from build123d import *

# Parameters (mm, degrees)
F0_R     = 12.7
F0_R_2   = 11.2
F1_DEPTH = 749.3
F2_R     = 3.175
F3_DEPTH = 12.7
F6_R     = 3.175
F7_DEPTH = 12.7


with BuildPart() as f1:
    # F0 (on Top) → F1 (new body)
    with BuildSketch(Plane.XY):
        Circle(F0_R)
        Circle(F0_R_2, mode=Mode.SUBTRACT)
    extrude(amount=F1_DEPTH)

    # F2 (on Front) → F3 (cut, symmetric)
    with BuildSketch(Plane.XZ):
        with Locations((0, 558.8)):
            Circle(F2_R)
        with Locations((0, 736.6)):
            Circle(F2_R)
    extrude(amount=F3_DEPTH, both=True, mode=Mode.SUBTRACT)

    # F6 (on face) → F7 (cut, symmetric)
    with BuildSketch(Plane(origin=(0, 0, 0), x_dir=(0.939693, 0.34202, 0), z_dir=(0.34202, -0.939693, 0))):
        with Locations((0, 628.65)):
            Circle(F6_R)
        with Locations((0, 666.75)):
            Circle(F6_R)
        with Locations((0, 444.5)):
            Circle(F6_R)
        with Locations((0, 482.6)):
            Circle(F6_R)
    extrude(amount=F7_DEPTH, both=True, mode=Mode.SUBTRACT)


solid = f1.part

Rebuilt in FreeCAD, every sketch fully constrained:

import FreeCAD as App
import Part
import Sketcher
Q = App.Units.Quantity

doc = App.newDocument("Part")
params = doc.addObject("Spreadsheet::Sheet", "Params")
for row, (alias, value) in enumerate([
    ("sketch1_diameter", "1 in"),
    ("pad1_length", "29.5 in"),
    ("sketch2_diameter", "0.25 in"),
    ("pocket1_length", "1 in"),
    ("sketch3_diameter", "0.25 in"),
    ("pocket2_length", "1 in"),
], start=1):
    params.set(f"A{row}", alias)
    params.set(f"B{row}", "=" + value)
    params.setAlias(f"B{row}", alias)

body = doc.addObject("PartDesign::Body", "Body")

# Sketch on XY plane
sketch1 = body.newObject("Sketcher::SketchObject", "Sketch")
sketch1.AttachmentSupport = (doc.getObject("XY_Plane"), [""])
sketch1.MapMode = "FlatFace"
sketch1.addGeometry([
    Part.Circle(App.Vector(0, 0, 0), App.Vector(0, 0, 1), 12.7),
    Part.Circle(App.Vector(0, 0, 0), App.Vector(0, 0, 1), 11.2),
], False)
sketch1.addConstraint([
    Sketcher.Constraint("Coincident", 0, 3, -1, 1),
    Sketcher.Constraint("Coincident", 1, 3, -1, 1),
    Sketcher.Constraint("Diameter", 0, Q("1 in")),
    Sketcher.Constraint("Diameter", 1, Q("22.4 mm")),
])
sketch1.setExpression("Constraints[2]", "Params.sketch1_diameter")
pad1 = body.newObject("PartDesign::Pad", "Pad")
pad1.Profile = sketch1
pad1.setExpression("Length", "Params.pad1_length")

# Sketch on XZ plane
sketch2 = body.newObject("Sketcher::SketchObject", "Sketch001")
sketch2.AttachmentSupport = (doc.getObject("XZ_Plane"), [""])
sketch2.MapMode = "FlatFace"
sketch2.addGeometry([
    Part.Circle(App.Vector(0, 558.8, 0), App.Vector(0, 0, 1), 3.175),
    Part.Circle(App.Vector(0, 736.6, 0), App.Vector(0, 0, 1), 3.175),
], False)
sketch2.addConstraint([
    Sketcher.Constraint("Equal", 0, 1),
    Sketcher.Constraint("PointOnObject", 0, 3, -2),
    Sketcher.Constraint("PointOnObject", 1, 3, -2),
    Sketcher.Constraint("Diameter", 0, Q("0.25 in")),
    Sketcher.Constraint("DistanceY", -1, 1, 0, 3, Q("22 in")),
    Sketcher.Constraint("DistanceY", -1, 1, 1, 3, Q("29 in")),
])
sketch2.setExpression("Constraints[3]", "Params.sketch2_diameter")
pocket1 = body.newObject("PartDesign::Pocket", "Pocket")
pocket1.Profile = sketch2
pocket1.setExpression("Length", "Params.pocket1_length")
pocket1.Midplane = True

# Sketch on an angled plane
sketch3 = body.newObject("Sketcher::SketchObject", "Sketch002")
sketch3.Placement = App.Placement(App.Vector(0, 0, 0), App.Rotation(App.Vector(0.939692711, 0.342019895, 0), App.Vector(0, 0, 1), App.Vector(0.342019895, -0.939692711, 0), "ZXY"))
sketch3.addGeometry([
    Part.Circle(App.Vector(0, 628.65, 0), App.Vector(0, 0, 1), 3.175),
    Part.Circle(App.Vector(0, 666.75, 0), App.Vector(0, 0, 1), 3.175),
    Part.Circle(App.Vector(0, 444.5, 0), App.Vector(0, 0, 1), 3.175),
    Part.Circle(App.Vector(0, 482.6, 0), App.Vector(0, 0, 1), 3.175),
], False)
sketch3.addConstraint([
    Sketcher.Constraint("Equal", 0, 1),
    Sketcher.Constraint("Equal", 1, 2),
    Sketcher.Constraint("Equal", 2, 3),
    Sketcher.Constraint("PointOnObject", 0, 3, -2),
    Sketcher.Constraint("PointOnObject", 1, 3, -2),
    Sketcher.Constraint("PointOnObject", 2, 3, -2),
    Sketcher.Constraint("PointOnObject", 3, 3, -2),
    Sketcher.Constraint("Diameter", 0, Q("0.25 in")),
    Sketcher.Constraint("DistanceY", -1, 1, 3, 3, Q("19 in")),
    Sketcher.Constraint("DistanceY", -1, 1, 2, 3, Q("17.5 in")),
    Sketcher.Constraint("DistanceY", 0, 3, 1, 3, Q("1.5 in")),
    Sketcher.Constraint("DistanceY", -1, 1, 0, 3, Q("24.75 in")),
])
sketch3.setExpression("Constraints[7]", "Params.sketch3_diameter")
pocket2 = body.newObject("PartDesign::Pocket", "Pocket001")
pocket2.Profile = sketch3
pocket2.setExpression("Length", "Params.pocket2_length")
pocket2.Midplane = True

doc.recompute()
